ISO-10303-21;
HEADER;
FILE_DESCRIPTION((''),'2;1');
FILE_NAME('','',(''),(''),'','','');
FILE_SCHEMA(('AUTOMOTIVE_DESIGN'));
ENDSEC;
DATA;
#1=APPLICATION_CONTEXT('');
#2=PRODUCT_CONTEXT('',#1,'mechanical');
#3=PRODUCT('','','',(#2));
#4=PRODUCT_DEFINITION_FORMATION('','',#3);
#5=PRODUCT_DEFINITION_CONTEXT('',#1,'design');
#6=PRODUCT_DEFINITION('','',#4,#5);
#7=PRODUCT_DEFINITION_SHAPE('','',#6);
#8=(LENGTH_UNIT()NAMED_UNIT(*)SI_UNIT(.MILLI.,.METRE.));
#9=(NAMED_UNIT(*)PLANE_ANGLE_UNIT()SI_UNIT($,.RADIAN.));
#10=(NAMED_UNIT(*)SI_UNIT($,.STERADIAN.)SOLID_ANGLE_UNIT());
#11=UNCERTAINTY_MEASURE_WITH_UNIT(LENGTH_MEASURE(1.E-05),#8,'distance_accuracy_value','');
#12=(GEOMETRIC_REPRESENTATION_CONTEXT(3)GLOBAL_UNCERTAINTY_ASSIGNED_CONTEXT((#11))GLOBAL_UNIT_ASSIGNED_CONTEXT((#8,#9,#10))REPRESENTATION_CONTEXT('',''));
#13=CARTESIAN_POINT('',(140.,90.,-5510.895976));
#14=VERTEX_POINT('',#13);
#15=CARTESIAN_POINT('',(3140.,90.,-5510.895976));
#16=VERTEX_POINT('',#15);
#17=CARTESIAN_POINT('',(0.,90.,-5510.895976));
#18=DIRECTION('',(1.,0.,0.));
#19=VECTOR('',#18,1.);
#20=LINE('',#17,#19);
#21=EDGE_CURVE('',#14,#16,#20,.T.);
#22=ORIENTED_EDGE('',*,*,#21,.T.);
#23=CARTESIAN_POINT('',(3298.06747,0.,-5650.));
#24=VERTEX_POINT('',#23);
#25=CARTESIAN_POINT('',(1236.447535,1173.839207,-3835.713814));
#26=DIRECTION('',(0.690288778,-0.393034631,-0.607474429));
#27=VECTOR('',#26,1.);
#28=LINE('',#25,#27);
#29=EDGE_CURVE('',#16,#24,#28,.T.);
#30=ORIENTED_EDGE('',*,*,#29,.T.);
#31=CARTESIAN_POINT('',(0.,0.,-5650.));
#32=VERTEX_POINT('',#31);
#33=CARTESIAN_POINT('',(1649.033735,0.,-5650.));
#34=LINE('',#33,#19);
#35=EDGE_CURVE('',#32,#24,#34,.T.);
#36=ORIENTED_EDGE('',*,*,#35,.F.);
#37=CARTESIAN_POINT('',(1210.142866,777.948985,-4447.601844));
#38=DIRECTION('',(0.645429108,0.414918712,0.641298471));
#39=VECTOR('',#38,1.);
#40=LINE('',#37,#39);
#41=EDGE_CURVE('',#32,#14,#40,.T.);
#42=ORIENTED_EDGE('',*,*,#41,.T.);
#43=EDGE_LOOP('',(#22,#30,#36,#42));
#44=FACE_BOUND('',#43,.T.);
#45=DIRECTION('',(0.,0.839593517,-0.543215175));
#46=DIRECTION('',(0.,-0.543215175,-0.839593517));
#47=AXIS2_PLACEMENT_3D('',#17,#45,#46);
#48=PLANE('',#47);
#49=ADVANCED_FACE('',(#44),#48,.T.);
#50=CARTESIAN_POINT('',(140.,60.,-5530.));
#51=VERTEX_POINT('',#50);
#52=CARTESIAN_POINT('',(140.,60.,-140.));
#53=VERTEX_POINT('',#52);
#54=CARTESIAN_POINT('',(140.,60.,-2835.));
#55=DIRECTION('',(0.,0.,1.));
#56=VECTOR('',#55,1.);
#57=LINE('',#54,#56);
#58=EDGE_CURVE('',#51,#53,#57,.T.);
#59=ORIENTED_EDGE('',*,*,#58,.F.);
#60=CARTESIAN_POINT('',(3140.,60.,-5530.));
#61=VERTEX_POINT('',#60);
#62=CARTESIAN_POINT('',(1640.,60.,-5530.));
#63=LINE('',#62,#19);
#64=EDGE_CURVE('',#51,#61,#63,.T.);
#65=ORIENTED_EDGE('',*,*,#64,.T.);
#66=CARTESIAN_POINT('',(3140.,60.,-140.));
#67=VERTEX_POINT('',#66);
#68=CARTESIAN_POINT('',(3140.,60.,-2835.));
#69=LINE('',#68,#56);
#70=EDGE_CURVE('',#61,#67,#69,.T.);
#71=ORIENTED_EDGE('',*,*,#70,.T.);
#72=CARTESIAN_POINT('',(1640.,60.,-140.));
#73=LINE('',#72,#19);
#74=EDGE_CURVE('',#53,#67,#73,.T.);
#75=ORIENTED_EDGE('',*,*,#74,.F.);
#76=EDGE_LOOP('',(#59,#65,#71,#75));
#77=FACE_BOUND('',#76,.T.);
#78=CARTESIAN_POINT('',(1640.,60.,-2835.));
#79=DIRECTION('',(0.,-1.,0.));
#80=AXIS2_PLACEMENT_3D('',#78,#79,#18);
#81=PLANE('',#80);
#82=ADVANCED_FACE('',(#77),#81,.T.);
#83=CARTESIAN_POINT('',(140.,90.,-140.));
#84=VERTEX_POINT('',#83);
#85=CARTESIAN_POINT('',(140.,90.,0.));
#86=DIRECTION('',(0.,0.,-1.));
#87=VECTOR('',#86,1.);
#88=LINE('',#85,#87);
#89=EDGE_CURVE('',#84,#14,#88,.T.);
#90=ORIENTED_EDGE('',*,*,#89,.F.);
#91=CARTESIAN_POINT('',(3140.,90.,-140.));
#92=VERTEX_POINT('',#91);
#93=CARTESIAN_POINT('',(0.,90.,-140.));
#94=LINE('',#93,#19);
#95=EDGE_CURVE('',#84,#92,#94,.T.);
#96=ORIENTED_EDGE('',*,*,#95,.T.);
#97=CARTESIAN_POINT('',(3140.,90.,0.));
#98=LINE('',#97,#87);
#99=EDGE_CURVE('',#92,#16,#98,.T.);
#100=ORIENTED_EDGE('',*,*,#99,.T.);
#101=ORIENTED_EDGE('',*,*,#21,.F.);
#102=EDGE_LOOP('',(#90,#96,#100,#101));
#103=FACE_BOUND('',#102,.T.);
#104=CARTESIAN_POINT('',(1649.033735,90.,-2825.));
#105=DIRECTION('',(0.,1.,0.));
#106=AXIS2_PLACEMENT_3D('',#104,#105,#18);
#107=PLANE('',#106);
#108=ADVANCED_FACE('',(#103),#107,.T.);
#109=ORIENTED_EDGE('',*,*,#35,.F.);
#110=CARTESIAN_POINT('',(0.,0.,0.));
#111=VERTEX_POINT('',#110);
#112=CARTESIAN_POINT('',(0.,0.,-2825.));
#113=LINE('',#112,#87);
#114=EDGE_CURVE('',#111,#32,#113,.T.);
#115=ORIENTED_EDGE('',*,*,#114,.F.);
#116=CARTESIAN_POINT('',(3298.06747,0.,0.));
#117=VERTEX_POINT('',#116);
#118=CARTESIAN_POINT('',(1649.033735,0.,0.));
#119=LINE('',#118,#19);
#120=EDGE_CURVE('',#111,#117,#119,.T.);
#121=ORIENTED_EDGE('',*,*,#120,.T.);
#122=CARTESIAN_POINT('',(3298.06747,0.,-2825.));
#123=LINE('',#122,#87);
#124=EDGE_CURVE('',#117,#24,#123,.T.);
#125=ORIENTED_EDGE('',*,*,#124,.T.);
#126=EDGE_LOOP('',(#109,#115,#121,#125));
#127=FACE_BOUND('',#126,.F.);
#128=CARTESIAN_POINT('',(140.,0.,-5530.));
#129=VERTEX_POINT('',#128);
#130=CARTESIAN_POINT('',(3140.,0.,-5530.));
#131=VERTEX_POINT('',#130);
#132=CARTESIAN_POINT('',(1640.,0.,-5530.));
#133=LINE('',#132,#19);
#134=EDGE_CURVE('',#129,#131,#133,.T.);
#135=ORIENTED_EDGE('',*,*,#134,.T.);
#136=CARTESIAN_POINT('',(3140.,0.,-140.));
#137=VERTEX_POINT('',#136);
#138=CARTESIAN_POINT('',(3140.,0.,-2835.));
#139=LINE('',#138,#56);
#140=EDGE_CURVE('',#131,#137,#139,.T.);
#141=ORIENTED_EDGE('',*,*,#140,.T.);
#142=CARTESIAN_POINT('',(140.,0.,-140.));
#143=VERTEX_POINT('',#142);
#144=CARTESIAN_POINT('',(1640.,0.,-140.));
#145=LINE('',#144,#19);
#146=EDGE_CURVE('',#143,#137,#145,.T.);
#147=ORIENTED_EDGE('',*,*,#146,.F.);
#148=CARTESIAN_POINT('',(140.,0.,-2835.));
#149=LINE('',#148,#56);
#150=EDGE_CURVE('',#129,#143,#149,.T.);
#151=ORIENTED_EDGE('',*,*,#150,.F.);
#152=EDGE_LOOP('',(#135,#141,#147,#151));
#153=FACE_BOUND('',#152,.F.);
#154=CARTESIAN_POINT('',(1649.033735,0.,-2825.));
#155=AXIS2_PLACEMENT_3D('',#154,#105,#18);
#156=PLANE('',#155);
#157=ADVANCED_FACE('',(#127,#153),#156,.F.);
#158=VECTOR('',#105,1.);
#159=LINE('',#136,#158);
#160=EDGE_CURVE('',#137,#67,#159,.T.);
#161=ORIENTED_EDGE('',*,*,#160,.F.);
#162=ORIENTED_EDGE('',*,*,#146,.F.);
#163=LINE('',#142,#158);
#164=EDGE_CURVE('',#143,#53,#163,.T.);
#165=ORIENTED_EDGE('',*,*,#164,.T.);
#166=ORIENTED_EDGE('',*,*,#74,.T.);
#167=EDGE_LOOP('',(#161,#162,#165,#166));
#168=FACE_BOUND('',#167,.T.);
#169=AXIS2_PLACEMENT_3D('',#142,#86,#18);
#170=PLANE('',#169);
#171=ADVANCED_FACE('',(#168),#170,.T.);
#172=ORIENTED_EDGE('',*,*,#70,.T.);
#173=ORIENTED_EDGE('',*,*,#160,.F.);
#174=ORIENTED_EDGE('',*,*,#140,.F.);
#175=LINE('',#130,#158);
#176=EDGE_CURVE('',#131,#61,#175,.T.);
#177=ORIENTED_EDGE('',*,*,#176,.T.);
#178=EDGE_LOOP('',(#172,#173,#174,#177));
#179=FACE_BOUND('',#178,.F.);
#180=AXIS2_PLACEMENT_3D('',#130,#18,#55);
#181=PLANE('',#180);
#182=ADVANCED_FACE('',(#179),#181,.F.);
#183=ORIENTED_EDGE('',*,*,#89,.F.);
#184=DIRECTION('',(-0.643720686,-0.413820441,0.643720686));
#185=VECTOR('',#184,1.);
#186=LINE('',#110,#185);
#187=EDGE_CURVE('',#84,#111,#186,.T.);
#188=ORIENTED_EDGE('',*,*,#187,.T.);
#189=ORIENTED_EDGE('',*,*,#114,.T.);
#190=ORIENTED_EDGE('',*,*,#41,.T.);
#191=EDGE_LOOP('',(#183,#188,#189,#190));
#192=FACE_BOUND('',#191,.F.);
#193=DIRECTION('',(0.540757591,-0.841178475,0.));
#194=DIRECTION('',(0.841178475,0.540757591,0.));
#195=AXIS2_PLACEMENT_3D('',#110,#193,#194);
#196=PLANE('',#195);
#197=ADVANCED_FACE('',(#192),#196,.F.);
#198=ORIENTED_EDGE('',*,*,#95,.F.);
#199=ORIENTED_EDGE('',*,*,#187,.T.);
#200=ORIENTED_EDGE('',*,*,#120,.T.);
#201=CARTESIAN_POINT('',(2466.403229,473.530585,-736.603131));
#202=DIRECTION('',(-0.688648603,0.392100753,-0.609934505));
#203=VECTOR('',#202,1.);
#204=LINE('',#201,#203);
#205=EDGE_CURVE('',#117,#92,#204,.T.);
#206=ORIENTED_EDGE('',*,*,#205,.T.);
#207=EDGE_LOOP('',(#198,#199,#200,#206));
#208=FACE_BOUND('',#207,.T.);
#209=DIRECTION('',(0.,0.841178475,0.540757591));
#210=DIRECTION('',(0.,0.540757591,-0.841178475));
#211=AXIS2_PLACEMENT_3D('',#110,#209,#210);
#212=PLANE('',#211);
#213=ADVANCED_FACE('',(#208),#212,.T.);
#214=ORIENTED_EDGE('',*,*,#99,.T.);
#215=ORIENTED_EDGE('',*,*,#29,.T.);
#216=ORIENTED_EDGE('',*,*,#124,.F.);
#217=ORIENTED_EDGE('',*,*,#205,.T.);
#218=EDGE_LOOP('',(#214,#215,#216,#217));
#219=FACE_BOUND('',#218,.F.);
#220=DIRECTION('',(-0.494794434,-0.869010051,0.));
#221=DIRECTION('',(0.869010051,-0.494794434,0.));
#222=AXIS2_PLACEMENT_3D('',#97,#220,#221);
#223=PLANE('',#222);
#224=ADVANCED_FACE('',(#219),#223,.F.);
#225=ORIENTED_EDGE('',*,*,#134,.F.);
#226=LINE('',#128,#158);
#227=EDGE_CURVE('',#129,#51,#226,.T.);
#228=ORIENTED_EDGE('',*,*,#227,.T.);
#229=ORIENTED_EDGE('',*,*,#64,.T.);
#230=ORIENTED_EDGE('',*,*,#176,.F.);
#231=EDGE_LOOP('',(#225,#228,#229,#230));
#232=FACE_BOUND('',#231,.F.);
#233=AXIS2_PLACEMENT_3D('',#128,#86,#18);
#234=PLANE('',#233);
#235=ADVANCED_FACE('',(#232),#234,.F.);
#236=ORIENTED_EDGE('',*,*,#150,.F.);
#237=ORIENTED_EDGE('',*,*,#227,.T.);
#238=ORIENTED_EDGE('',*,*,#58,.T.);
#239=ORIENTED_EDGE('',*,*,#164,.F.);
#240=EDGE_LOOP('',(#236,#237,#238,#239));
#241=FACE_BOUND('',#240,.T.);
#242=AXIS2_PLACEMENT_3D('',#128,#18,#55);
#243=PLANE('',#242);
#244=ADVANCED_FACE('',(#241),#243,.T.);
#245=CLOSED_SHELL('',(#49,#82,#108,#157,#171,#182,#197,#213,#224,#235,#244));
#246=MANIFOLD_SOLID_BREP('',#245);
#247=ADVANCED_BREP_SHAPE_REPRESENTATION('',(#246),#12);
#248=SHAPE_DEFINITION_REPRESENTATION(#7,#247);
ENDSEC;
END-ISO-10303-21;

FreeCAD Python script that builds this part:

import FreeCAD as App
import Part
import Sketcher

doc = App.newDocument("Part")
body = doc.addObject("PartDesign::Body", "Body")

sketch1 = body.newObject("Sketcher::SketchObject", "Sketch")
sketch1.AttachmentSupport = (doc.getObject("XZ_Plane"), [""])
sketch1.MapMode = "FlatFace"
sketch1.addGeometry(Part.LineSegment(App.Vector(0, -5650, 0), App.Vector(0, 0, 0)), False)
sketch1.addGeometry(Part.LineSegment(App.Vector(0, 0, 0), App.Vector(3298, 0, 0)), False)
sketch1.addGeometry(Part.LineSegment(App.Vector(3298, 0, 0), App.Vector(3298, -5650, 0)), False)
sketch1.addGeometry(Part.LineSegment(App.Vector(3298, -5650, 0), App.Vector(0, -5650, 0)), False)
sketch1.addConstraint(Sketcher.Constraint("Coincident", 0, 2, 1, 1))
sketch1.addConstraint(Sketcher.Constraint("Coincident", 1, 2, 2, 1))
sketch1.addConstraint(Sketcher.Constraint("Coincident", 2, 2, 3, 1))
sketch1.addConstraint(Sketcher.Constraint("Coincident", 3, 2, 0, 1))
sketch1.addConstraint(Sketcher.Constraint("Vertical", 0))
sketch1.addConstraint(Sketcher.Constraint("Horizontal", 1))
sketch1.addConstraint(Sketcher.Constraint("Vertical", 2))
sketch1.addConstraint(Sketcher.Constraint("Horizontal", 3))
sketch1.addConstraint(Sketcher.Constraint("Coincident", 0, 2, -1, 1))
sketch1.addConstraint(Sketcher.Constraint("DistanceY", 0, 1, 0, 2, 5650.0))
sketch1.addConstraint(Sketcher.Constraint("DistanceX", 1, 1, 1, 2, 3298.06747))
pad1 = body.newObject("PartDesign::Pad", "Pad")
pad1.Profile = sketch1
pad1.Length = 90
pad1.Reversed = True

sketch2 = body.newObject("Sketcher::SketchObject", "Sketch001")
sketch2.AttachmentSupport = (doc.getObject("XY_Plane"), [""])
sketch2.MapMode = "FlatFace"
sketch2.addGeometry(Part.LineSegment(App.Vector(-655, 745, 0), App.Vector(-655, -655, 0)), False)
sketch2.addGeometry(Part.LineSegment(App.Vector(-655, -655, 0), App.Vector(3953, -655, 0)), False)
sketch2.addGeometry(Part.LineSegment(App.Vector(3953, -655, 0), App.Vector(3953, 745, 0)), False)
sketch2.addGeometry(Part.LineSegment(App.Vector(3953, 745, 0), App.Vector(-655, 745, 0)), False)
sketch2.addGeometry(Part.LineSegment(App.Vector(3298, 0, 0), App.Vector(0, 0, 0)), False)
sketch2.addGeometry(Part.LineSegment(App.Vector(0, 0, 0), App.Vector(140, 90, 0)), False)
sketch2.addGeometry(Part.LineSegment(App.Vector(140, 90, 0), App.Vector(3140, 90, 0)), False)
sketch2.addGeometry(Part.LineSegment(App.Vector(3140, 90, 0), App.Vector(3298, 0, 0)), False)
sketch2.addConstraint(Sketcher.Constraint("Coincident", 0, 2, 1, 1))
sketch2.addConstraint(Sketcher.Constraint("Coincident", 1, 2, 2, 1))
sketch2.addConstraint(Sketcher.Constraint("Coincident", 2, 2, 3, 1))
sketch2.addConstraint(Sketcher.Constraint("Coincident", 3, 2, 0, 1))
sketch2.addConstraint(Sketcher.Constraint("Coincident", 4, 2, 5, 1))
sketch2.addConstraint(Sketcher.Constraint("Coincident", 5, 2, 6, 1))
sketch2.addConstraint(Sketcher.Constraint("Coincident", 6, 2, 7, 1))
sketch2.addConstraint(Sketcher.Constraint("Coincident", 7, 2, 4, 1))
sketch2.addConstraint(Sketcher.Constraint("Vertical", 0))
sketch2.addConstraint(Sketcher.Constraint("Horizontal", 1))
sketch2.addConstraint(Sketcher.Constraint("Vertical", 2))
sketch2.addConstraint(Sketcher.Constraint("Horizontal", 3))
sketch2.addConstraint(Sketcher.Constraint("Horizontal", 4))
sketch2.addConstraint(Sketcher.Constraint("Horizontal", 6))
sketch2.addConstraint(Sketcher.Constraint("Coincident", 4, 2, -1, 1))
sketch2.addConstraint(Sketcher.Constraint("DistanceX", 6, 1, 6, 2, 3000.0))
sketch2.addConstraint(Sketcher.Constraint("DistanceX", -1, 1, 5, 2, 140.0))
sketch2.addConstraint(Sketcher.Constraint("DistanceY", -1, 1, 5, 2, 90.0))
sketch2.addConstraint(Sketcher.Constraint("DistanceX", 1, 1, 1, 2, 4608.621))
sketch2.addConstraint(Sketcher.Constraint("DistanceY", 0, 2, 0, 1, 1400.554))
sketch2.addConstraint(Sketcher.Constraint("DistanceX", 0, 2, -1, 1, 655.277))
sketch2.addConstraint(Sketcher.Constraint("DistanceY", 0, 2, -1, 1, 655.277))
sketch2.addConstraint(Sketcher.Constraint("DistanceX", 4, 2, 4, 1, 3298.06747))
pocket1 = body.newObject("PartDesign::Pocket", "Pocket")
pocket1.Profile = sketch2
pocket1.Type = "ThroughAll"

sketch3 = body.newObject("Sketcher::SketchObject", "Sketch002")
sketch3.AttachmentSupport = (doc.getObject("YZ_Plane"), [""])
sketch3.MapMode = "FlatFace"
sketch3.addGeometry(Part.LineSegment(App.Vector(745, 655, 0), App.Vector(-655, 655, 0)), False)
sketch3.addGeometry(Part.LineSegment(App.Vector(-655, 655, 0), App.Vector(-655, -6305, 0)), False)
sketch3.addGeometry(Part.LineSegment(App.Vector(-655, -6305, 0), App.Vector(745, -6305, 0)), False)
sketch3.addGeometry(Part.LineSegment(App.Vector(745, -6305, 0), App.Vector(745, 655, 0)), False)
sketch3.addGeometry(Part.LineSegment(App.Vector(0, -5650, 0), App.Vector(0, 0, 0)), False)
sketch3.addGeometry(Part.LineSegment(App.Vector(0, 0, 0), App.Vector(90, -140, 0)), False)
sketch3.addGeometry(Part.LineSegment(App.Vector(90, -140, 0), App.Vector(90, -5511, 0)), False)
sketch3.addGeometry(Part.LineSegment(App.Vector(90, -5511, 0), App.Vector(0, -5650, 0)), False)
sketch3.addConstraint(Sketcher.Constraint("Coincident", 0, 2, 1, 1))
sketch3.addConstraint(Sketcher.Constraint("Coincident", 1, 2, 2, 1))
sketch3.addConstraint(Sketcher.Constraint("Coincident", 2, 2, 3, 1))
sketch3.addConstraint(Sketcher.Constraint("Coincident", 3, 2, 0, 1))
sketch3.addConstraint(Sketcher.Constraint("Coincident", 4, 2, 5, 1))
sketch3.addConstraint(Sketcher.Constraint("Coincident", 5, 2, 6, 1))
sketch3.addConstraint(Sketcher.Constraint("Coincident", 6, 2, 7, 1))
sketch3.addConstraint(Sketcher.Constraint("Coincident", 7, 2, 4, 1))
sketch3.addConstraint(Sketcher.Constraint("Horizontal", 0))
sketch3.addConstraint(Sketcher.Constraint("Vertical", 1))
sketch3.addConstraint(Sketcher.Constraint("Horizontal", 2))
sketch3.addConstraint(Sketcher.Constraint("Vertical", 3))
sketch3.addConstraint(Sketcher.Constraint("Vertical", 4))
sketch3.addConstraint(Sketcher.Constraint("Vertical", 6))
sketch3.addConstraint(Sketcher.Constraint("Coincident", 4, 2, -1, 1))
sketch3.addConstraint(Sketcher.Constraint("DistanceY", 4, 1, 4, 2, 5650.0))
sketch3.addConstraint(Sketcher.Constraint("DistanceX", -1, 1, 5, 2, 90.0))
sketch3.addConstraint(Sketcher.Constraint("DistanceY", 5, 2, -1, 1, 140.0))
sketch3.addConstraint(Sketcher.Constraint("DistanceX", 0, 2, 0, 1, 1400.554))
sketch3.addConstraint(Sketcher.Constraint("DistanceY", 1, 2, 1, 1, 6960.554))
sketch3.addConstraint(Sketcher.Constraint("DistanceX", 0, 2, -1, 1, 655.277))
sketch3.addConstraint(Sketcher.Constraint("DistanceY", -1, 1, 0, 2, 655.277))
sketch3.addConstraint(Sketcher.Constraint("DistanceY", 6, 2, 6, 1, 5370.895976))
pocket2 = body.newObject("PartDesign::Pocket", "Pocket001")
pocket2.Profile = sketch3
pocket2.Type = "ThroughAll"
pocket2.Reversed = True

sketch4 = body.newObject("Sketcher::SketchObject", "Sketch003")
sketch4.AttachmentSupport = (doc.getObject("XZ_Plane"), [""])
sketch4.MapMode = "FlatFace"
sketch4.addGeometry(Part.LineSegment(App.Vector(140, -140, 0), App.Vector(140, -5530, 0)), False)
sketch4.addGeometry(Part.LineSegment(App.Vector(140, -5530, 0), App.Vector(3140, -5530, 0)), False)
sketch4.addGeometry(Part.LineSegment(App.Vector(3140, -5530, 0), App.Vector(3140, -140, 0)), False)
sketch4.addGeometry(Part.LineSegment(App.Vector(3140, -140, 0), App.Vector(140, -140, 0)), False)
sketch4.addConstraint(Sketcher.Constraint("Coincident", 0, 2, 1, 1))
sketch4.addConstraint(Sketcher.Constraint("Coincident", 1, 2, 2, 1))
sketch4.addConstraint(Sketcher.Constraint("Coincident", 2, 2, 3, 1))
sketch4.addConstraint(Sketcher.Constraint("Coincident", 3, 2, 0, 1))
sketch4.addConstraint(Sketcher.Constraint("Vertical", 0))
sketch4.addConstraint(Sketcher.Constraint("Horizontal", 1))
sketch4.addConstraint(Sketcher.Constraint("Vertical", 2))
sketch4.addConstraint(Sketcher.Constraint("Horizontal", 3))
sketch4.addConstraint(Sketcher.Constraint("DistanceX", 1, 1, 1, 2, 3000.0))
sketch4.addConstraint(Sketcher.Constraint("DistanceY", 0, 2, 0, 1, 5390.0))
sketch4.addConstraint(Sketcher.Constraint("DistanceX", -1, 1, 0, 2, 140.0))
sketch4.addConstraint(Sketcher.Constraint("DistanceY", 0, 2, -1, 1, 5530.0))
pocket3 = body.newObject("PartDesign::Pocket", "Pocket002")
pocket3.Profile = sketch4
pocket3.Length = 60

doc.recompute()
